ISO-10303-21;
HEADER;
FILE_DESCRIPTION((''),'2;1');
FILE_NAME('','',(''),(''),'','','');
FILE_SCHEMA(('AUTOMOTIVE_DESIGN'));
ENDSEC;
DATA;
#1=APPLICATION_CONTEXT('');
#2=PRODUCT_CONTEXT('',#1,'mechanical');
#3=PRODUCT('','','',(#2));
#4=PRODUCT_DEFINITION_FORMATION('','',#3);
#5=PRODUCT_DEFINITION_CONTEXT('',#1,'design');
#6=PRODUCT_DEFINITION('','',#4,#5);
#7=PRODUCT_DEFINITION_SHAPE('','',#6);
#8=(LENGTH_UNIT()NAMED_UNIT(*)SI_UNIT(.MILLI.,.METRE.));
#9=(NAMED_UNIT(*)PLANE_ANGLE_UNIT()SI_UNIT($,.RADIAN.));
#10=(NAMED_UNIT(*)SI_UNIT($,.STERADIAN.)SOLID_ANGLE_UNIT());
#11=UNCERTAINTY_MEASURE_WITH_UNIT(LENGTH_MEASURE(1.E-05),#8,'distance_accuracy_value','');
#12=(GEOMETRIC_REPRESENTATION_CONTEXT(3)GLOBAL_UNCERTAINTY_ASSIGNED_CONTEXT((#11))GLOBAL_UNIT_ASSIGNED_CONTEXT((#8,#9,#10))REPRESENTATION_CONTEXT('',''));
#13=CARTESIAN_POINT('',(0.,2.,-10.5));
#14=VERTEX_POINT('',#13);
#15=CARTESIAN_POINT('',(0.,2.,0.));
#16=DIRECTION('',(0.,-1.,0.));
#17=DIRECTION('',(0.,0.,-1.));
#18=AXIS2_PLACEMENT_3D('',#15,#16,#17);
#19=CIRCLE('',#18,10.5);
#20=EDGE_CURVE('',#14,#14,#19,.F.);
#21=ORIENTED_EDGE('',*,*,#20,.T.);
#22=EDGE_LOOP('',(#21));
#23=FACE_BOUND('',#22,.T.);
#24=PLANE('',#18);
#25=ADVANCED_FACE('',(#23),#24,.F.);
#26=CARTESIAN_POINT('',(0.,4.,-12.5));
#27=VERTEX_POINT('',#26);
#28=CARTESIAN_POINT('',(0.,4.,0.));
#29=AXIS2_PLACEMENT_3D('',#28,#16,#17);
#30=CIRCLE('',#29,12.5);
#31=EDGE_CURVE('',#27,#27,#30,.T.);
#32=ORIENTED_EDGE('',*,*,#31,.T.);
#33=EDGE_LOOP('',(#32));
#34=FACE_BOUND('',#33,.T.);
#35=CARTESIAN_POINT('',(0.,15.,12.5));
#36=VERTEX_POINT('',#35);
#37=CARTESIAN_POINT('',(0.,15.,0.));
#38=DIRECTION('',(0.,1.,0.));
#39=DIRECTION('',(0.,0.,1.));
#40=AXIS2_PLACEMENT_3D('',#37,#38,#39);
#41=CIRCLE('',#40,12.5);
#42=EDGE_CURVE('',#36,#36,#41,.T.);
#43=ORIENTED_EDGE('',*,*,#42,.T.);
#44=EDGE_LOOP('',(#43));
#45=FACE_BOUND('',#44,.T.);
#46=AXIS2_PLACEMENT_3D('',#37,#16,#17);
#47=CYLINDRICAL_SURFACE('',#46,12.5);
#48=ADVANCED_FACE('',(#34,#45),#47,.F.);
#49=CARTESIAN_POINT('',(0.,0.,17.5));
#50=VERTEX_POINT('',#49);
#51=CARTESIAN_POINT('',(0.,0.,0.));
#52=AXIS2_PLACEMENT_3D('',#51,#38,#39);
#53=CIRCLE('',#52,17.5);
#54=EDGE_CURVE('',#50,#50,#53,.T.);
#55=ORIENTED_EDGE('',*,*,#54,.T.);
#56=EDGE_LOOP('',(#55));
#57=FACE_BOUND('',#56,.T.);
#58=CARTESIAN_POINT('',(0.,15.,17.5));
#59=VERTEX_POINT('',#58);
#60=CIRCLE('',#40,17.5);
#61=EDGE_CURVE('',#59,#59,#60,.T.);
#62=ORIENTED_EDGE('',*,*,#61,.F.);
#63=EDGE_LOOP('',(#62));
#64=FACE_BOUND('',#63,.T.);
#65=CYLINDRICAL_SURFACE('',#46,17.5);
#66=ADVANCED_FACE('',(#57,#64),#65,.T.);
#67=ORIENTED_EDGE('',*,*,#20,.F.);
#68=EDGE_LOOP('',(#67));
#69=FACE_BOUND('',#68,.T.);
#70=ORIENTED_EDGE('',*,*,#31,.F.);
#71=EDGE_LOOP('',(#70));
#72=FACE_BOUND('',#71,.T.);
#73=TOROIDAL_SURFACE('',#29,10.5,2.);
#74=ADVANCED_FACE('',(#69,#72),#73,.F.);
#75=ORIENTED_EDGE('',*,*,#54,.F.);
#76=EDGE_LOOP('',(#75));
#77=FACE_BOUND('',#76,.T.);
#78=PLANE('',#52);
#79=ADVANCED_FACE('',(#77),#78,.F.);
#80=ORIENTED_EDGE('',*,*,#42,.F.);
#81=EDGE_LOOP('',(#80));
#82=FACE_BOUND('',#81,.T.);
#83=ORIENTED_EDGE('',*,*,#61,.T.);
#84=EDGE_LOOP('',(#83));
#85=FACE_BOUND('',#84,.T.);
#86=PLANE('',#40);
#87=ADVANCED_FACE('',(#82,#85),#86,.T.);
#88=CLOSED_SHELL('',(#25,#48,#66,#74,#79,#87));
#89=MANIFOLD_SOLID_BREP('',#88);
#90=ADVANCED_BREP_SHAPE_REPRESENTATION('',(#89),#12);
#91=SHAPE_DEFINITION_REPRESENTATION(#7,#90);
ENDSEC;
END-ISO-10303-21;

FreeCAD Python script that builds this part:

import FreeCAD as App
import Part
import Sketcher
from FreeCAD import Vector
Q = App.Units.Quantity


def edges_at(feature, points):
    """Names of the edges that pass closest to the given points."""
    edges = feature.Shape.Edges
    near = lambda p: min(range(len(edges)), key=lambda i: edges[i].distToShape(Part.Vertex(*p))[0])
    return sorted({f"Edge{near(p) + 1}" for p in points})

doc = App.newDocument("Part")
body = doc.addObject("PartDesign::Body", "Body")

sketch1 = body.newObject("Sketcher::SketchObject", "Sketch")
sketch1.AttachmentSupport = (doc.getObject("XZ_Plane"), [""])
sketch1.MapMode = "FlatFace"
sketch1.addGeometry(Part.Circle(Vector(0, 0, 0), Vector(0, 0, 1), 18), False)
sketch1.addGeometry(Part.Circle(Vector(0, 0, 0), Vector(0, 0, 1), 12), False)
sketch1.addConstraint(Sketcher.Constraint("Coincident", 0, 3, -1, 1))
sketch1.addConstraint(Sketcher.Constraint("Coincident", 1, 3, -1, 1))
sketch1.addConstraint(Sketcher.Constraint("Diameter", 0, Q("35 mm")))
sketch1.addConstraint(Sketcher.Constraint("Diameter", 1, Q("25 mm")))
pad1 = body.newObject("PartDesign::Pad", "Pad")
pad1.Profile = sketch1
pad1.Length = 15
pad1.Reversed = True

sketch2 = body.newObject("Sketcher::SketchObject", "Sketch001")
sketch2.AttachmentSupport = (doc.getObject("XZ_Plane"), [""])
sketch2.MapMode = "FlatFace"
sketch2.addGeometry(Part.Circle(Vector(0, 0, 0), Vector(0, 0, 1), 12), False)
sketch2.addConstraint(Sketcher.Constraint("Coincident", 0, 3, -1, 1))
sketch2.addConstraint(Sketcher.Constraint("Diameter", 0, Q("25 mm")))
pad2 = body.newObject("PartDesign::Pad", "Pad001")
pad2.Profile = sketch2
pad2.Length = 2
pad2.Reversed = True
doc.recompute()

fillet = body.newObject("PartDesign::Fillet", "Fillet")
fillet.Base = (pad2, edges_at(pad2, [(0, 2, -12.5)]))
fillet.Radius = 2

doc.recompute()
